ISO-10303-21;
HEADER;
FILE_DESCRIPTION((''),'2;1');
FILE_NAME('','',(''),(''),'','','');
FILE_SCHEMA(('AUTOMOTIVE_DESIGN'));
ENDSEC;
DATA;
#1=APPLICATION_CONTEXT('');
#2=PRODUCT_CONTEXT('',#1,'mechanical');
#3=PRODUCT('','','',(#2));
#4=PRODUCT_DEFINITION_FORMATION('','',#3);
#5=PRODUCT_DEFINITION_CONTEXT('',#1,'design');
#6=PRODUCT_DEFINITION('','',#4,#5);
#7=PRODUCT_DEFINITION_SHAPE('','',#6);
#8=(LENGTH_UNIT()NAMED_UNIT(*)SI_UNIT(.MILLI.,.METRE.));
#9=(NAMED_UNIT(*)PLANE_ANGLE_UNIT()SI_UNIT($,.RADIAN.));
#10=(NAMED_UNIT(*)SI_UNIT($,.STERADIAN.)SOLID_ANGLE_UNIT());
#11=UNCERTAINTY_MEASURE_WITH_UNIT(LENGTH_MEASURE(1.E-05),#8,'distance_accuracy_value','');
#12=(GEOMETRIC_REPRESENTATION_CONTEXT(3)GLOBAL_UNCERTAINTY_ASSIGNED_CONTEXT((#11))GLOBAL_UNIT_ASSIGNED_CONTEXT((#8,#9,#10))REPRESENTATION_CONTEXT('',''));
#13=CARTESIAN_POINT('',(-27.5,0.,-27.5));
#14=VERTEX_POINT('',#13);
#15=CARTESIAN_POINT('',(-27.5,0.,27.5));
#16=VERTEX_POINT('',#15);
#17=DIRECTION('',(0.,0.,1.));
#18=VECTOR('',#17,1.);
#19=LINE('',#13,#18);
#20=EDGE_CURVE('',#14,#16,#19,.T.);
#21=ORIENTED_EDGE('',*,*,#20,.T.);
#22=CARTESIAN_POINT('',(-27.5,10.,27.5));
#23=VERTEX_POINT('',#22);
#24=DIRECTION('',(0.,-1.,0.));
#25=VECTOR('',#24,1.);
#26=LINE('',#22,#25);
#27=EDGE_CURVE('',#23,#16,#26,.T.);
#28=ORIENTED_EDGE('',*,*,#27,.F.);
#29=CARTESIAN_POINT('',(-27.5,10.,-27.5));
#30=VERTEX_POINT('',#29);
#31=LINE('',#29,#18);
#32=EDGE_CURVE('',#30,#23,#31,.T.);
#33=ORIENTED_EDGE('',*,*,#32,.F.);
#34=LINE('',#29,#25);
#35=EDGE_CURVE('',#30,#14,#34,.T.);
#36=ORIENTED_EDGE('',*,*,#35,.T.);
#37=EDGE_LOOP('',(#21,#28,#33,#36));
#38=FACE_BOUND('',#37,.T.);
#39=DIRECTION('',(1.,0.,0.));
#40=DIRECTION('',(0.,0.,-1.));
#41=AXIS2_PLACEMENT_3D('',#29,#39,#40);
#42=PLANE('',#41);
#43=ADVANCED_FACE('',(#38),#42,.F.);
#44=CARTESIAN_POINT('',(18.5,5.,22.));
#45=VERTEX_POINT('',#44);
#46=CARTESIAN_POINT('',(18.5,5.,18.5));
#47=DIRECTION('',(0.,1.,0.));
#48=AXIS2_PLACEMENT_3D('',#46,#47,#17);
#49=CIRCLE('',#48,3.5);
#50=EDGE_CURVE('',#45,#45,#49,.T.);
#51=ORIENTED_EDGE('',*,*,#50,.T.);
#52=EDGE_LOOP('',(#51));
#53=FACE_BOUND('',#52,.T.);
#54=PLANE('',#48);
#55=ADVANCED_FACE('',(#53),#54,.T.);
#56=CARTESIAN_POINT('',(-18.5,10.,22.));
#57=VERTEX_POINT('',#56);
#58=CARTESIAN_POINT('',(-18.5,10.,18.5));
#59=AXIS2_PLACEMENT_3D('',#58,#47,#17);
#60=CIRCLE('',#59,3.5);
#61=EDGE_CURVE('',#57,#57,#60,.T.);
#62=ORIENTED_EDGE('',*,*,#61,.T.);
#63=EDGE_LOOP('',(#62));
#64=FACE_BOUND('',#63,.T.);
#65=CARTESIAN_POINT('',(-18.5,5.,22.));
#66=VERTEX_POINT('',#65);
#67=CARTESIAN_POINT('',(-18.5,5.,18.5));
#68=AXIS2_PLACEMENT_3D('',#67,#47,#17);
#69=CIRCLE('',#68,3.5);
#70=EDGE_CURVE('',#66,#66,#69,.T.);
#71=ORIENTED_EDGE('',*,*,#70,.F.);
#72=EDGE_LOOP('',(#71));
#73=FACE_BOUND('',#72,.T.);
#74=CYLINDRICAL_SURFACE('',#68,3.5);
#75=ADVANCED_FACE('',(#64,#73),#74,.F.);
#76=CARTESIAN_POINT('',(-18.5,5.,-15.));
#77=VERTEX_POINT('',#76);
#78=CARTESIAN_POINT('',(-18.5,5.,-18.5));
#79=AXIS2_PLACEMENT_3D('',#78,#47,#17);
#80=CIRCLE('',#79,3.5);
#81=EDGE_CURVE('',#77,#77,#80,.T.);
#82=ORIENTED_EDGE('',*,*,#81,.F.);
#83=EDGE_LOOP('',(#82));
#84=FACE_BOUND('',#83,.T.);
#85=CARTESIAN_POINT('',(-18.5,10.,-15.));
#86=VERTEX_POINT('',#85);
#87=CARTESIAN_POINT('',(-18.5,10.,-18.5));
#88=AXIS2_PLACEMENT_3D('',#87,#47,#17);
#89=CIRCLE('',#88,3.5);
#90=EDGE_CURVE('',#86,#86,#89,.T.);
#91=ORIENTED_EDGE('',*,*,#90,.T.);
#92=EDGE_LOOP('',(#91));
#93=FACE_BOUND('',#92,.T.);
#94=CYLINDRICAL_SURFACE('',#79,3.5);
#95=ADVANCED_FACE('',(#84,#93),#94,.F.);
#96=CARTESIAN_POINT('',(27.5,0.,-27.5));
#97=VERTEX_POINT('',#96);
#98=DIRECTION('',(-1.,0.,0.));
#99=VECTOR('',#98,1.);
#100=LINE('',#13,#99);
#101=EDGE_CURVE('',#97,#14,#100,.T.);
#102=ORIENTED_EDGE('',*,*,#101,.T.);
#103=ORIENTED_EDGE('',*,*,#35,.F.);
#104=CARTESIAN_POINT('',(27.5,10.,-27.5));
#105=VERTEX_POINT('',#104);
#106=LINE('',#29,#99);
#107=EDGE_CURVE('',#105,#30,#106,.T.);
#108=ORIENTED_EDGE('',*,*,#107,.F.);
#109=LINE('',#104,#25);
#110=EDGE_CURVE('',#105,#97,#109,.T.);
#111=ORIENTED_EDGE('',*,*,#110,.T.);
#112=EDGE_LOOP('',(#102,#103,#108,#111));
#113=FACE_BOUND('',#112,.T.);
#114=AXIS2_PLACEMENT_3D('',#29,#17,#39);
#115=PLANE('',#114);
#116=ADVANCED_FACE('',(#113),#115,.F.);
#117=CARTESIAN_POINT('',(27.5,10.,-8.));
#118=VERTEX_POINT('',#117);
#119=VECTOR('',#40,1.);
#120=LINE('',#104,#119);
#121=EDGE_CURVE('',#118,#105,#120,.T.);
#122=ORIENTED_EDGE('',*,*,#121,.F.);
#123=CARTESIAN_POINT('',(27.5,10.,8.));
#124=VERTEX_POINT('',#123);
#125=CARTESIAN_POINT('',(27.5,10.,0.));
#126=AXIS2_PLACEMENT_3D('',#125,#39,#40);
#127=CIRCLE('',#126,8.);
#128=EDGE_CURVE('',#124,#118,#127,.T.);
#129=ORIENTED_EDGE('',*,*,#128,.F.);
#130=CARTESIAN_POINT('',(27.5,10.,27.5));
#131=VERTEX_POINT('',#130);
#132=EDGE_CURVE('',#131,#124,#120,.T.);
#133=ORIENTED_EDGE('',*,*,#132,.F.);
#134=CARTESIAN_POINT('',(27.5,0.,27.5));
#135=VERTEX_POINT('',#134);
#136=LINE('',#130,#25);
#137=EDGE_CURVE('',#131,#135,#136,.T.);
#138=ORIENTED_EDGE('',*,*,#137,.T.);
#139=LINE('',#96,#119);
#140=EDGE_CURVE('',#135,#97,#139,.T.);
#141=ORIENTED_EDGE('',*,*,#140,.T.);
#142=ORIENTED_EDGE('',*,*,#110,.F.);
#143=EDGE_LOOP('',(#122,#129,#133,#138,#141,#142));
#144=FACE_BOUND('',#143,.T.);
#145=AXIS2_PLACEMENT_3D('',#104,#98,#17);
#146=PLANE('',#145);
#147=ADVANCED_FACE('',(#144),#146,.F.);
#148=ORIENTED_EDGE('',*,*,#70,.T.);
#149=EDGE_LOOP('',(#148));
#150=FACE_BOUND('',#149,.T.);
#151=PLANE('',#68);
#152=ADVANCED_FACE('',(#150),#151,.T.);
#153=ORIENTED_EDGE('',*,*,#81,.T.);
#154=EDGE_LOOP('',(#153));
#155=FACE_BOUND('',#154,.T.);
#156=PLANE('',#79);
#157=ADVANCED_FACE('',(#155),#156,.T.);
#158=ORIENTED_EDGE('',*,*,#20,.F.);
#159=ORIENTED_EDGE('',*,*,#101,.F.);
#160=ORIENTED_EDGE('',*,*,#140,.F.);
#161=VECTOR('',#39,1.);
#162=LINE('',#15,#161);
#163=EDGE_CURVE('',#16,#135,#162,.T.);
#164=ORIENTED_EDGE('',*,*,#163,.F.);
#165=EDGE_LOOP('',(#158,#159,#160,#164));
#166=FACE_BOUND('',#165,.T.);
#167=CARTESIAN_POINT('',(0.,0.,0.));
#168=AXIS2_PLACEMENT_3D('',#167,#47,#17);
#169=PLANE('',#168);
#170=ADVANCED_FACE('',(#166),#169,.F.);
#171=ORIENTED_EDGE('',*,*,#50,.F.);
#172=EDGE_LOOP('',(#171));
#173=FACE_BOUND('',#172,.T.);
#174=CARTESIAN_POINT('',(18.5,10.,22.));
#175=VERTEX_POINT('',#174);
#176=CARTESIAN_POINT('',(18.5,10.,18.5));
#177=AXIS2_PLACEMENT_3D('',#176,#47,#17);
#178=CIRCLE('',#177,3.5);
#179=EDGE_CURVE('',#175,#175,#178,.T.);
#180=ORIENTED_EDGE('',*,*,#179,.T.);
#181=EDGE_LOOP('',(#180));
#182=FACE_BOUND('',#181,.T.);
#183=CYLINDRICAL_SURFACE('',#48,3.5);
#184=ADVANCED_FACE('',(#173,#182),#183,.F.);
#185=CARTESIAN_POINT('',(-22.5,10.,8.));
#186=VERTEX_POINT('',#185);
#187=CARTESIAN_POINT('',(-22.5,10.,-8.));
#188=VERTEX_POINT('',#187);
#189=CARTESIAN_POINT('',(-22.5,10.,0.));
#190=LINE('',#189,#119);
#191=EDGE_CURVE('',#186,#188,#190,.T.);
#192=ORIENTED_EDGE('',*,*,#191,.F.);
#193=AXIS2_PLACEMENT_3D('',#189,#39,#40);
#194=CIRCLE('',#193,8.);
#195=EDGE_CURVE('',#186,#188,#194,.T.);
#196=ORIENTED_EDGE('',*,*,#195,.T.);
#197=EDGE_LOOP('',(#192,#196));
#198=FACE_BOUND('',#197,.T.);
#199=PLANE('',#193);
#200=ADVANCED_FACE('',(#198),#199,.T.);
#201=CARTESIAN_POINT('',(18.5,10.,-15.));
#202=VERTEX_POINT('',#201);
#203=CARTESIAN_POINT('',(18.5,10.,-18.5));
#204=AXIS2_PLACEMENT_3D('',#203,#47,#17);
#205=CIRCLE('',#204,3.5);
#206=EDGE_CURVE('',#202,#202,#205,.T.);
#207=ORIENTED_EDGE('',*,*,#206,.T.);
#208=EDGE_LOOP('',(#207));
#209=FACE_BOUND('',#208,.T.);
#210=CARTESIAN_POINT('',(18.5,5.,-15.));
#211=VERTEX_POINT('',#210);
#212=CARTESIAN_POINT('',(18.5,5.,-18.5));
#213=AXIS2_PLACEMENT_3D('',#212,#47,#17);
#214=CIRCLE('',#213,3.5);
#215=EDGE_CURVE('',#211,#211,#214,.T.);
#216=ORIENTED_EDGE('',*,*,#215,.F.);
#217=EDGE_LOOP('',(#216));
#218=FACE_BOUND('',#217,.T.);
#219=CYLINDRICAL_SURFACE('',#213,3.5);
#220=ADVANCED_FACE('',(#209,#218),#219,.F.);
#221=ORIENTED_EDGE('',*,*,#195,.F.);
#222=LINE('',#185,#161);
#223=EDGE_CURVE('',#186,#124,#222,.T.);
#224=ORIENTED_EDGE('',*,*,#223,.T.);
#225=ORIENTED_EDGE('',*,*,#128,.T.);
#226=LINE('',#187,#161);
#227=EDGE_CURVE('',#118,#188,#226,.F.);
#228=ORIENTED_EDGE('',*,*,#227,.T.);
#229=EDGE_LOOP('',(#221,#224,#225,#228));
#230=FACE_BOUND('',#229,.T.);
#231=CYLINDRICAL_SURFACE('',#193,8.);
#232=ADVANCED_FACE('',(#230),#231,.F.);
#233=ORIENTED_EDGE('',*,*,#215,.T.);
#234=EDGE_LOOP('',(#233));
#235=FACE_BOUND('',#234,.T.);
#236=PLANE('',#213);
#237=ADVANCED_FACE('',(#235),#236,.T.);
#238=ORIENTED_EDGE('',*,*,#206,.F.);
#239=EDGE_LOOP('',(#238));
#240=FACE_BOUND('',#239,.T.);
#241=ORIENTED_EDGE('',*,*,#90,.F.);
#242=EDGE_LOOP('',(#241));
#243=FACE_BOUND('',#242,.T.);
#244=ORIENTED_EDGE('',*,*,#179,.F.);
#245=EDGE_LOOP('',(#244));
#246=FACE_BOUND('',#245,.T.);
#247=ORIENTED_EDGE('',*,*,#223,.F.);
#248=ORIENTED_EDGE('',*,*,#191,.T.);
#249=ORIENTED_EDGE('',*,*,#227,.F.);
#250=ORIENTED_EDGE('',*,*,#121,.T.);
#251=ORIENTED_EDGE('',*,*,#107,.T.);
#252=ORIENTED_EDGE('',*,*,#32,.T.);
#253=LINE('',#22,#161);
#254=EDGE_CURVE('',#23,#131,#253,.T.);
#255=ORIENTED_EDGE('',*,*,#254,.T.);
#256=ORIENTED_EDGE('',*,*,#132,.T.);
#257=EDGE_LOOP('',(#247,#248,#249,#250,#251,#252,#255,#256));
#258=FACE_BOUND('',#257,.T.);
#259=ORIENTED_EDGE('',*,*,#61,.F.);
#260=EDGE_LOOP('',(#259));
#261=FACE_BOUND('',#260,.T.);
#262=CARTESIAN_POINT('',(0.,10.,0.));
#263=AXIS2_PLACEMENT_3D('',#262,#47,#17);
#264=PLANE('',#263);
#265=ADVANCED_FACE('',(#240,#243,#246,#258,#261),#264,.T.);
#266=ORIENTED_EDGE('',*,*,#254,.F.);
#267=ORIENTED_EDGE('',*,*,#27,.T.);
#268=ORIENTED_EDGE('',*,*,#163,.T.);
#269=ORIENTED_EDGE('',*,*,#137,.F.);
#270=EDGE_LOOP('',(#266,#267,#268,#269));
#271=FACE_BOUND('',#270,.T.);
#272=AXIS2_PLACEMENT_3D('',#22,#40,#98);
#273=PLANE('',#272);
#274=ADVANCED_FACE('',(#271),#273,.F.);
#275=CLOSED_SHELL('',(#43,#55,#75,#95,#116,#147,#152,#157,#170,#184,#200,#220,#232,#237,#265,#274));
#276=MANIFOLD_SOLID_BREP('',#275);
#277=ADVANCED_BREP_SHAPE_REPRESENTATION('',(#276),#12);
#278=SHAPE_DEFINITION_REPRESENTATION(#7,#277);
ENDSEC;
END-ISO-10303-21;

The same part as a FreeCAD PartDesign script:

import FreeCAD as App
import Part
import Sketcher

V = App.Vector
Q = App.Units.Quantity


def add_polygon(sketch, points):
    """Adds a closed chain of lines whose ends are joined by coincident constraints."""
    first, n = sketch.GeometryCount, len(points)
    for a, b in zip(points, points[1:] + points[:1]):
        sketch.addGeometry(Part.LineSegment(App.Vector(*a, 0), App.Vector(*b, 0)), False)
    for i in range(n):
        sketch.addConstraint(Sketcher.Constraint("Coincident", first + i, 2, first + (i + 1) % n, 1))

doc = App.newDocument("Part")
body = doc.addObject("PartDesign::Body", "Body")

# Sketch on XZ plane
sketch1 = body.newObject("Sketcher::SketchObject", "Sketch")
sketch1.AttachmentSupport = (doc.getObject("XZ_Plane"), [""])
sketch1.MapMode = "FlatFace"
add_polygon(sketch1, [(-28, -28), (-28, 28), (28, 28), (28, -28)])  # lines 0-3
sketch1.addConstraint([
    Sketcher.Constraint("Vertical", 0),
    Sketcher.Constraint("Horizontal", 1),
    Sketcher.Constraint("Vertical", 2),
    Sketcher.Constraint("Horizontal", 3),
    Sketcher.Constraint("Symmetric", 0, 2, 2, 2, -1, 1),
    Sketcher.Constraint("Equal", 3, 0),
    Sketcher.Constraint("DistanceX", 1, 1, 1, 2, Q("55 mm")),
])
pad1 = body.newObject("PartDesign::Pad", "Pad")
pad1.Profile = sketch1
pad1.Length = 10
pad1.Reversed = True

# Sketch on YZ plane
sketch2 = body.newObject("Sketcher::SketchObject", "Sketch001")
sketch2.AttachmentSupport = (doc.getObject("YZ_Plane"), [""])
sketch2.MapMode = "FlatFace"
sketch2.AttachmentOffset = App.Placement(V(0, 0, 27.5), App.Rotation())
sketch2.addGeometry(Part.Circle(V(10, 0, 0), V(0, 0, 1), 8), False)
sketch2.addConstraint([
    Sketcher.Constraint("PointOnObject", 0, 3, -1),
    Sketcher.Constraint("Diameter", 0, Q("16 mm")),
    Sketcher.Constraint("DistanceX", -1, 1, 0, 3, Q("10 mm")),
])
pocket1 = body.newObject("PartDesign::Pocket", "Pocket")
pocket1.Profile = sketch2
pocket1.Length = 50

# Sketch on XZ plane
sketch3 = body.newObject("Sketcher::SketchObject", "Sketch002")
sketch3.AttachmentSupport = (doc.getObject("XZ_Plane"), [""])
sketch3.MapMode = "FlatFace"
sketch3.AttachmentOffset = App.Placement(V(0, 0, -10), App.Rotation())
sketch3.addGeometry([
    Part.Circle(V(-18.5, -18.5, 0), V(0, 0, 1), 3.5),
    Part.Circle(V(18.5, -18.5, 0), V(0, 0, 1), 3.5),
    Part.Circle(V(-18.5, 18.5, 0), V(0, 0, 1), 3.5),
    Part.Circle(V(18.5, 18.5, 0), V(0, 0, 1), 3.5),
], False)
sketch3.addConstraint([
    Sketcher.Constraint("Equal", 0, 1),
    Sketcher.Constraint("Equal", 1, 2),
    Sketcher.Constraint("Equal", 2, 3),
    Sketcher.Constraint("Symmetric", 1, 3, 2, 3, -1, 1),
    Sketcher.Constraint("Symmetric", 0, 3, 3, 3, -1, 1),
    Sketcher.Constraint("Symmetric", 0, 3, 1, 3, -2),
    Sketcher.Constraint("Diameter", 0, Q("7 mm")),
    Sketcher.Constraint("DistanceX", 0, 3, 1, 3, Q("37 mm")),
    Sketcher.Constraint("DistanceY", 0, 3, 2, 3, Q("37 mm")),
])
pocket2 = body.newObject("PartDesign::Pocket", "Pocket001")
pocket2.Profile = sketch3
pocket2.Length = 5
pocket2.Reversed = True

doc.recompute()
